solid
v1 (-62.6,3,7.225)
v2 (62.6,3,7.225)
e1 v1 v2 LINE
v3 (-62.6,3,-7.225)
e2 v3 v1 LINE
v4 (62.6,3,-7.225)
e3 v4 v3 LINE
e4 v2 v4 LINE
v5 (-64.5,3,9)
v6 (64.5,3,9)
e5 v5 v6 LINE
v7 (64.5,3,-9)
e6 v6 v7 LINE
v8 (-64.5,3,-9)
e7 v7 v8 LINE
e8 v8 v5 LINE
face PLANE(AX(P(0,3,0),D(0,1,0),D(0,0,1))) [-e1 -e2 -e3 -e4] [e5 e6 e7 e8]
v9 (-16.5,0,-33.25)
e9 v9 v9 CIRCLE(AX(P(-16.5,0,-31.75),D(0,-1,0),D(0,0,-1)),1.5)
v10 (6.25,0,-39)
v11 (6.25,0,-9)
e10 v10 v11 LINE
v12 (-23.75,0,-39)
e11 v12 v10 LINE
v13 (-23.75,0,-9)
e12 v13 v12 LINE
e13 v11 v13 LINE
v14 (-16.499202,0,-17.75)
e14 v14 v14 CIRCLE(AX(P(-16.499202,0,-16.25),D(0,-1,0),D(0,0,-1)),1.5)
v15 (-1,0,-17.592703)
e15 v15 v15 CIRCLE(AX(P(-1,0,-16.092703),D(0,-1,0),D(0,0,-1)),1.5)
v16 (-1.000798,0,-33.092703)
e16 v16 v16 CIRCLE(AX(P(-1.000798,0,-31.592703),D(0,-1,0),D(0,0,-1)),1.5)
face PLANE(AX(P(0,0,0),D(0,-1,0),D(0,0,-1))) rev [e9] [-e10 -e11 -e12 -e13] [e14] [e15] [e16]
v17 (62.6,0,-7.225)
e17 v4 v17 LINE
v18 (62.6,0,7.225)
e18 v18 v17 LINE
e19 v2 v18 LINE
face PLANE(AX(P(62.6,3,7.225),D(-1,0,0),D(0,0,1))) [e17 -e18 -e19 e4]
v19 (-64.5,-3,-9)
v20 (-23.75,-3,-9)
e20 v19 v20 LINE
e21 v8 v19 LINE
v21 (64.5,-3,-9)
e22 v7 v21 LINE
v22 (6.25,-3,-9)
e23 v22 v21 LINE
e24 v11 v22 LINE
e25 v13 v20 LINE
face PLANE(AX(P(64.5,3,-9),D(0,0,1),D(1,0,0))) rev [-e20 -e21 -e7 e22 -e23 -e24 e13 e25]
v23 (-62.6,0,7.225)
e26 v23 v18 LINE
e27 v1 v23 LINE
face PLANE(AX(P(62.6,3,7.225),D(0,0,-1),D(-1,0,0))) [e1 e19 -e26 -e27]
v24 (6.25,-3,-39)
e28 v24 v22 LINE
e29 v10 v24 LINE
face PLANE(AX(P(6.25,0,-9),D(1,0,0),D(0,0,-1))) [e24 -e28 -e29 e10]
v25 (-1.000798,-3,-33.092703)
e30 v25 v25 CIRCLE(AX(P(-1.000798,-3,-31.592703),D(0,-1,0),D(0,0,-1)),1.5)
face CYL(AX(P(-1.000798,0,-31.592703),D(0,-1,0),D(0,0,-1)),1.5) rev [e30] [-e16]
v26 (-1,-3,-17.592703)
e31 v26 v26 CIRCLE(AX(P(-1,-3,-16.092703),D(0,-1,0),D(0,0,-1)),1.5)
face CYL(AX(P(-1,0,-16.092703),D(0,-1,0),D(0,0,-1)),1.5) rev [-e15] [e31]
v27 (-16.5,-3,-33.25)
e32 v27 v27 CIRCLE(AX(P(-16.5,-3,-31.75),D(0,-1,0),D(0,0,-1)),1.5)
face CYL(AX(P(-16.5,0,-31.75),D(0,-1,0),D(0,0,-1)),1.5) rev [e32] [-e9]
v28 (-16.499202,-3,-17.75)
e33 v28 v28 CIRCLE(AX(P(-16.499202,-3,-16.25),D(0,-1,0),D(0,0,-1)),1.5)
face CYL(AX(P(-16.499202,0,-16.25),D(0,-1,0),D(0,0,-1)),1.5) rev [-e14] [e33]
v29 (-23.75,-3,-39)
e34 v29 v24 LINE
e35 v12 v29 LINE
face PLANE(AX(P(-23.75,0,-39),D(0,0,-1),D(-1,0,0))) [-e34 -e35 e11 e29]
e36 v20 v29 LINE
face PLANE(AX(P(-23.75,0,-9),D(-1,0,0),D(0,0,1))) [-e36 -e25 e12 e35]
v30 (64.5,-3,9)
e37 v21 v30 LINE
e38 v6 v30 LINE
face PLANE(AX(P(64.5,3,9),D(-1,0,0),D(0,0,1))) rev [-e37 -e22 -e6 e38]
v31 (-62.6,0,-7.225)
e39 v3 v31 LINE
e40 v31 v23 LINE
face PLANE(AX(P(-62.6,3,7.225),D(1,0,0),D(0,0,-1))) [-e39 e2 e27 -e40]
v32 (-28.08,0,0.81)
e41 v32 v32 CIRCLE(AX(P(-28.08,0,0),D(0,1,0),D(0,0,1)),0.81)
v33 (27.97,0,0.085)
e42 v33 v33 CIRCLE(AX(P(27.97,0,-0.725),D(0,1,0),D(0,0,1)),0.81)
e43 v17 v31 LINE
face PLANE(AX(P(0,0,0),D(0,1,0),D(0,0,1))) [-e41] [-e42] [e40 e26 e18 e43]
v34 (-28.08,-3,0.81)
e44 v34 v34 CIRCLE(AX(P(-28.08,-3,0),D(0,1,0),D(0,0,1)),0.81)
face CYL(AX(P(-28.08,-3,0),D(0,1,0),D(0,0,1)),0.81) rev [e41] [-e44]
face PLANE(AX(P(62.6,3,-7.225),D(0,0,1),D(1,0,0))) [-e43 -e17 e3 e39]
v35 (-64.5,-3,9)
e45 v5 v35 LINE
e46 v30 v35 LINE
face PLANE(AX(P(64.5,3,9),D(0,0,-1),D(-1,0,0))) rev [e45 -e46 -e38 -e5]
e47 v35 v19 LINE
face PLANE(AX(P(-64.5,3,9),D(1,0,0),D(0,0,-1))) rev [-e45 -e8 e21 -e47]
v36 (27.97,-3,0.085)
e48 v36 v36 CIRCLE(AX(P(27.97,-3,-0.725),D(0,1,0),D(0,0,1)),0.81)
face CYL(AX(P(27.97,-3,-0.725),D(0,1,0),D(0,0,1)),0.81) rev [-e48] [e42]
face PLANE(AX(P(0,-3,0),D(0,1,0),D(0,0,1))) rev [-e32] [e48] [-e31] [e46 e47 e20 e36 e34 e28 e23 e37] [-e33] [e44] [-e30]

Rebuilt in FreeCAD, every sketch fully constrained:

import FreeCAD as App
import Part
import Sketcher

V = App.Vector
Q = App.Units.Quantity

doc = App.newDocument("Part")
body = doc.addObject("PartDesign::Body", "Body")

sketch1 = doc.addObject("Sketcher::SketchObject", "Sketch")
body.addObject(sketch1)
sketch1.AttachmentSupport = (doc.XZ_Plane, [""])
sketch1.MapMode = "FlatFace"
sketch1.addGeometry(Part.LineSegment(V(-64, -9, 0), V(-64, 9, 0)), False)
sketch1.addGeometry(Part.LineSegment(V(-64, 9, 0), V(64, 9, 0)), False)
sketch1.addGeometry(Part.LineSegment(V(64, 9, 0), V(64, -9, 0)), False)
sketch1.addGeometry(Part.LineSegment(V(64, -9, 0), V(-64, -9, 0)), False)
sketch1.addGeometry(Part.LineSegment(V(63, 7, 0), V(-63, 7, 0)), False)
sketch1.addGeometry(Part.LineSegment(V(-63, 7, 0), V(-63, -7, 0)), False)
sketch1.addGeometry(Part.LineSegment(V(-63, -7, 0), V(63, -7, 0)), False)
sketch1.addGeometry(Part.LineSegment(V(63, -7, 0), V(63, 7, 0)), False)
sketch1.addConstraint(Sketcher.Constraint("Coincident", 0, 2, 1, 1))
sketch1.addConstraint(Sketcher.Constraint("Coincident", 1, 2, 2, 1))
sketch1.addConstraint(Sketcher.Constraint("Coincident", 2, 2, 3, 1))
sketch1.addConstraint(Sketcher.Constraint("Coincident", 3, 2, 0, 1))
sketch1.addConstraint(Sketcher.Constraint("Coincident", 4, 2, 5, 1))
sketch1.addConstraint(Sketcher.Constraint("Coincident", 5, 2, 6, 1))
sketch1.addConstraint(Sketcher.Constraint("Coincident", 6, 2, 7, 1))
sketch1.addConstraint(Sketcher.Constraint("Coincident", 7, 2, 4, 1))
sketch1.addConstraint(Sketcher.Constraint("Vertical", 0))
sketch1.addConstraint(Sketcher.Constraint("Horizontal", 1))
sketch1.addConstraint(Sketcher.Constraint("Vertical", 2))
sketch1.addConstraint(Sketcher.Constraint("Horizontal", 3))
sketch1.addConstraint(Sketcher.Constraint("Horizontal", 4))
sketch1.addConstraint(Sketcher.Constraint("Vertical", 5))
sketch1.addConstraint(Sketcher.Constraint("Horizontal", 6))
sketch1.addConstraint(Sketcher.Constraint("Vertical", 7))
sketch1.addConstraint(Sketcher.Constraint("Symmetric", 0, 2, 2, 2, -1, 1))
sketch1.addConstraint(Sketcher.Constraint("Symmetric", 4, 2, 6, 2, -1, 1))
sketch1.addConstraint(Sketcher.Constraint("DistanceX", 1, 1, 1, 2, Q("129 mm")))
sketch1.addConstraint(Sketcher.Constraint("DistanceY", 0, 1, 0, 2, Q("18 mm")))
sketch1.addConstraint(Sketcher.Constraint("DistanceX", 4, 2, 4, 1, Q("125.2 mm")))
sketch1.addConstraint(Sketcher.Constraint("DistanceY", 5, 2, 5, 1, Q("14.45 mm")))
pad1 = doc.addObject("PartDesign::Pad", "Pad")
body.addObject(pad1)
pad1.Profile = sketch1
pad1.Length = 3
pad1.Reversed = True

sketch2 = doc.addObject("Sketcher::SketchObject", "Sketch001")
body.addObject(sketch2)
sketch2.AttachmentSupport = (doc.XZ_Plane, [""])
sketch2.MapMode = "FlatFace"
sketch2.addGeometry(Part.LineSegment(V(-64, 9, 0), V(-64, -9, 0)), False)
sketch2.addGeometry(Part.LineSegment(V(-64, -9, 0), V(64, -9, 0)), False)
sketch2.addGeometry(Part.LineSegment(V(64, -9, 0), V(64, 9, 0)), False)
sketch2.addGeometry(Part.LineSegment(V(64, 9, 0), V(-64, 9, 0)), False)
sketch2.addConstraint(Sketcher.Constraint("Coincident", 0, 2, 1, 1))
sketch2.addConstraint(Sketcher.Constraint("Coincident", 1, 2, 2, 1))
sketch2.addConstraint(Sketcher.Constraint("Coincident", 2, 2, 3, 1))
sketch2.addConstraint(Sketcher.Constraint("Coincident", 3, 2, 0, 1))
sketch2.addConstraint(Sketcher.Constraint("Vertical", 0))
sketch2.addConstraint(Sketcher.Constraint("Horizontal", 1))
sketch2.addConstraint(Sketcher.Constraint("Vertical", 2))
sketch2.addConstraint(Sketcher.Constraint("Horizontal", 3))
sketch2.addConstraint(Sketcher.Constraint("Symmetric", 0, 2, 2, 2, -1, 1))
sketch2.addConstraint(Sketcher.Constraint("DistanceX", 1, 1, 1, 2, Q("129 mm")))
sketch2.addConstraint(Sketcher.Constraint("DistanceY", 0, 2, 0, 1, Q("18 mm")))
pad2 = doc.addObject("PartDesign::Pad", "Pad001")
body.addObject(pad2)
pad2.Profile = sketch2
pad2.Length = 3

sketch3 = doc.addObject("Sketcher::SketchObject", "Sketch002")
body.addObject(sketch3)
sketch3.AttachmentSupport = (doc.XZ_Plane, [""])
sketch3.MapMode = "FlatFace"
sketch3.addGeometry(Part.Circle(V(28, -0.7, 0), V(0, 0, 1), 0.8), False)
sketch3.addGeometry(Part.Circle(V(-28.1, 0, 0), V(0, 0, 1), 0.8), False)
sketch3.addConstraint(Sketcher.Constraint("Equal", 0, 1))
sketch3.addConstraint(Sketcher.Constraint("PointOnObject", 1, 3, -1))
sketch3.addConstraint(Sketcher.Constraint("Diameter", 0, Q("1.62 mm")))
sketch3.addConstraint(Sketcher.Constraint("DistanceX", -1, 1, 0, 3, Q("27.97 mm")))
sketch3.addConstraint(Sketcher.Constraint("DistanceX", 1, 3, -1, 1, Q("28.08 mm")))
sketch3.addConstraint(Sketcher.Constraint("DistanceY", 0, 3, -1, 1, Q("0.725 mm")))
pocket1 = doc.addObject("PartDesign::Pocket", "Pocket")
body.addObject(pocket1)
pocket1.Profile = sketch3
pocket1.Type = "ThroughAll"
pocket1.Reversed = True

sketch4 = doc.addObject("Sketcher::SketchObject", "Sketch003")
body.addObject(sketch4)
sketch4.AttachmentSupport = (doc.XZ_Plane, [""])
sketch4.MapMode = "FlatFace"
sketch4.AttachmentOffset = App.Placement(V(0, 0, 3), App.Rotation())
sketch4.addGeometry(Part.LineSegment(V(-23.8, -9, 0), V(-23.8, -39, 0)), False)
sketch4.addGeometry(Part.LineSegment(V(-23.8, -39, 0), V(6.2, -39, 0)), False)
sketch4.addGeometry(Part.LineSegment(V(6.2, -39, 0), V(6.2, -9, 0)), False)
sketch4.addGeometry(Part.LineSegment(V(6.2, -9, 0), V(-23.8, -9, 0)), False)
sketch4.addGeometry(Part.Circle(V(-16.5, -31.8, 0), V(0, 0, 1), 1.5), False)
sketch4.addGeometry(Part.Circle(V(-1, -31.6, 0), V(0, 0, 1), 1.5), False)
sketch4.addGeometry(Part.Circle(V(-16.5, -16.3, 0), V(0, 0, 1), 1.5), False)
sketch4.addGeometry(Part.Circle(V(-1, -16.1, 0), V(0, 0, 1), 1.5), False)
sketch4.addConstraint(Sketcher.Constraint("Coincident", 0, 2, 1, 1))
sketch4.addConstraint(Sketcher.Constraint("Coincident", 1, 2, 2, 1))
sketch4.addConstraint(Sketcher.Constraint("Coincident", 2, 2, 3, 1))
sketch4.addConstraint(Sketcher.Constraint("Coincident", 3, 2, 0, 1))
sketch4.addConstraint(Sketcher.Constraint("Vertical", 0))
sketch4.addConstraint(Sketcher.Constraint("Horizontal", 1))
sketch4.addConstraint(Sketcher.Constraint("Vertical", 2))
sketch4.addConstraint(Sketcher.Constraint("Horizontal", 3))
sketch4.addConstraint(Sketcher.Constraint("Equal", 4, 5))
sketch4.addConstraint(Sketcher.Constraint("Equal", 5, 6))
sketch4.addConstraint(Sketcher.Constraint("Equal", 6, 7))
sketch4.addConstraint(Sketcher.Constraint("Equal", 3, 0))
sketch4.addConstraint(Sketcher.Constraint("Diameter", 4, Q("3 mm")))
sketch4.addConstraint(Sketcher.Constraint("DistanceX", 1, 1, 1, 2, Q("30 mm")))
sketch4.addConstraint(Sketcher.Constraint("DistanceX", 7, 3, -1, 1, Q("1 mm")))
sketch4.addConstraint(Sketcher.Constraint("DistanceY", 0, 2, -1, 1, Q("39 mm")))
sketch4.addConstraint(Sketcher.Constraint("DistanceX", 4, 3, -1, 1, Q("16.5 mm")))
sketch4.addConstraint(Sketcher.Constraint("DistanceY", 4, 3, 6, 3, Q("15.5 mm")))
sketch4.addConstraint(Sketcher.Constraint("DistanceY", 5, 3, 7, 3, Q("15.5 mm")))
sketch4.addConstraint(Sketcher.Constraint("DistanceY", 4, 3, -1, 1, Q("31.75 mm")))
sketch4.addConstraint(Sketcher.Constraint("DistanceX", 0, 2, -1, 1, Q("23.75 mm")))
sketch4.addConstraint(Sketcher.Constraint("DistanceX", 5, 3, -1, 1, Q("1.000798 mm")))
sketch4.addConstraint(Sketcher.Constraint("DistanceX", 6, 3, -1, 1, Q("16.499202 mm")))
sketch4.addConstraint(Sketcher.Constraint("DistanceY", 5, 3, -1, 1, Q("31.592703 mm")))
pad3 = doc.addObject("PartDesign::Pad", "Pad002")
body.addObject(pad3)
pad3.Profile = sketch4
pad3.Length = 3
pad3.Reversed = True

doc.recompute()
